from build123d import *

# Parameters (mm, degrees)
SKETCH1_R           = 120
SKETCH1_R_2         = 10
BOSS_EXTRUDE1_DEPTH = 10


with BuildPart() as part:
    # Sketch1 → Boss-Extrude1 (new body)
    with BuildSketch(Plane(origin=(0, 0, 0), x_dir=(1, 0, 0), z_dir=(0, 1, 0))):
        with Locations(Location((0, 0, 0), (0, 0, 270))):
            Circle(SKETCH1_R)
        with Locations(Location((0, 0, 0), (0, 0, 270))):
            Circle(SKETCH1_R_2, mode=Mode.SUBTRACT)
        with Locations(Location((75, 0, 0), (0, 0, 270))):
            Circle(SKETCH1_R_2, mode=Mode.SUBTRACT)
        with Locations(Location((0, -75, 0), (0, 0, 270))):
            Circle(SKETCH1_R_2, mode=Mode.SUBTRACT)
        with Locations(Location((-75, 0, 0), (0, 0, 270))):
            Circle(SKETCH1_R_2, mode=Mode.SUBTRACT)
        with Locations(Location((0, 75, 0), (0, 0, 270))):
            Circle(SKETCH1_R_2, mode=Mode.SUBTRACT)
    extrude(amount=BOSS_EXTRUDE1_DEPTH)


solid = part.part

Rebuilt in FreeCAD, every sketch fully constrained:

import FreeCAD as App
import Part
import Sketcher
from FreeCAD import Vector
Q = App.Units.Quantity

doc = App.newDocument("Part")
params = doc.addObject("Spreadsheet::Sheet", "Params")
for row, (alias, value) in enumerate([
    ("sketch1_diameter", "240 mm"),
    ("sketch1_diameter2", "20 mm"),
    ("pad1_length", "10 mm"),
], start=1):
    params.set(f"A{row}", alias)
    params.set(f"B{row}", "=" + value)
    params.setAlias(f"B{row}", alias)

body = doc.addObject("PartDesign::Body", "Body")

# Sketch on XZ plane
sketch1 = body.newObject("Sketcher::SketchObject", "Sketch")
sketch1.AttachmentSupport = (doc.getObject("XZ_Plane"), [""])
sketch1.MapMode = "FlatFace"
sketch1.addGeometry([
    Part.Circle(Vector(0, 0, 0), Vector(0, 0, 1), 120),  # 0
    Part.Circle(Vector(0, -75, 0), Vector(0, 0, 1), 10),  # 1
    Part.Circle(Vector(-75, 0, 0), Vector(0, 0, 1), 10),  # 2
    Part.Circle(Vector(75, 0, 0), Vector(0, 0, 1), 10),  # 3
    Part.Circle(Vector(0, 0, 0), Vector(0, 0, 1), 10),  # 4
    Part.Circle(Vector(0, 75, 0), Vector(0, 0, 1), 10),  # 5
], False)
sketch1.addConstraint([
    Sketcher.Constraint("Coincident", 0, 3, -1, 1),
    Sketcher.Constraint("Coincident", 4, 3, -1, 1),
    Sketcher.Constraint("Equal", 1, 2),
    Sketcher.Constraint("Equal", 2, 3),
    Sketcher.Constraint("Equal", 3, 4),
    Sketcher.Constraint("Equal", 4, 5),
    Sketcher.Constraint("Symmetric", 2, 3, 3, 3, -1, 1),
    Sketcher.Constraint("Symmetric", 1, 3, 5, 3, -1, 1),
    Sketcher.Constraint("PointOnObject", 1, 3, -2),
    Sketcher.Constraint("PointOnObject", 2, 3, -1),
    Sketcher.Constraint("Diameter", 0, Q("240 mm")),
    Sketcher.Constraint("Diameter", 1, Q("20 mm")),
    Sketcher.Constraint("DistanceY", 1, 3, -1, 1, Q("75 mm")),
    Sketcher.Constraint("DistanceX", 2, 3, -1, 1, Q("75 mm")),
])
sketch1.setExpression("Constraints[10]", "Params.sketch1_diameter")
sketch1.setExpression("Constraints[11]", "Params.sketch1_diameter2")
pad1 = body.newObject("PartDesign::Pad", "Pad")
pad1.Profile = sketch1
pad1.setExpression("Length", "Params.pad1_length")
pad1.Reversed = True

doc.recompute()
